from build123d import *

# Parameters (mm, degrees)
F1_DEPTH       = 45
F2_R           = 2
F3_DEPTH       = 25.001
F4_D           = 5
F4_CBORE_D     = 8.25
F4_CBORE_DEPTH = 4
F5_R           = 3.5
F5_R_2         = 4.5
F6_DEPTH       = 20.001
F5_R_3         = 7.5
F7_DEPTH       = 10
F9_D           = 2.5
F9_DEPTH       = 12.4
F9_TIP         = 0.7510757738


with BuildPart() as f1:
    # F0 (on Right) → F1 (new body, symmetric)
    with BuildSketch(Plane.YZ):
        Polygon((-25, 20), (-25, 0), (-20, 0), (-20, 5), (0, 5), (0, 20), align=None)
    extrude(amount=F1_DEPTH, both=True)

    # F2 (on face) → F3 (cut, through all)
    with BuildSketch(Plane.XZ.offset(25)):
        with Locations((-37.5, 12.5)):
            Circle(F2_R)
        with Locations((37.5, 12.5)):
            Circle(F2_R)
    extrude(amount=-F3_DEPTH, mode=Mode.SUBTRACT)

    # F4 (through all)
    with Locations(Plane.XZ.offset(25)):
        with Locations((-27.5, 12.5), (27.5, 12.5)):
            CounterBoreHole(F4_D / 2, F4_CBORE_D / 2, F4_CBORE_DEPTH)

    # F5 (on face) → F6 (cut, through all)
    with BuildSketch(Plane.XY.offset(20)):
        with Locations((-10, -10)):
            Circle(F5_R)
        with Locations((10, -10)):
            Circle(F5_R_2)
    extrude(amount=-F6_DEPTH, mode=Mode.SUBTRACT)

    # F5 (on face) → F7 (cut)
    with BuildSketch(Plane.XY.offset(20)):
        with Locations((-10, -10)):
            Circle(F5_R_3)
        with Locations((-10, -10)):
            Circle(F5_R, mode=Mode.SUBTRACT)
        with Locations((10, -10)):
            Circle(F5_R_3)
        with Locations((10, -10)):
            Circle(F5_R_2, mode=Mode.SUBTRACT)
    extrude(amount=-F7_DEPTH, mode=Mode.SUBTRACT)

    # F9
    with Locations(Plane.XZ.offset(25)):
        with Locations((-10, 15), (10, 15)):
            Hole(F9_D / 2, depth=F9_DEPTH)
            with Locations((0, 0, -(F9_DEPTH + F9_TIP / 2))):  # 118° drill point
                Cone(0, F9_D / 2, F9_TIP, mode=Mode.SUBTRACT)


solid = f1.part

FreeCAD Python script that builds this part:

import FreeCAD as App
import Part
import Sketcher
from FreeCAD import Vector


def add_polygon(sketch, points):
    """Adds a closed chain of lines whose ends are joined by coincident constraints."""
    first, n = sketch.GeometryCount, len(points)
    for a, b in zip(points, points[1:] + points[:1]):
        sketch.addGeometry(Part.LineSegment(App.Vector(*a, 0), App.Vector(*b, 0)), False)
    for i in range(n):
        sketch.addConstraint(Sketcher.Constraint("Coincident", first + i, 2, first + (i + 1) % n, 1))

doc = App.newDocument("Part")
body = doc.addObject("PartDesign::Body", "Body")

sketch1 = doc.addObject("Sketcher::SketchObject", "Sketch")
body.addObject(sketch1)
sketch1.AttachmentSupport = (doc.YZ_Plane, [""])
sketch1.MapMode = "FlatFace"
add_polygon(sketch1, [(-25, 20), (-25, 0), (-20, 0), (-20, 5), (0, 5), (0, 20)])
sketch1.addConstraint(Sketcher.Constraint("Vertical", 0))
sketch1.addConstraint(Sketcher.Constraint("Horizontal", 1))
sketch1.addConstraint(Sketcher.Constraint("Vertical", 2))
sketch1.addConstraint(Sketcher.Constraint("Horizontal", 3))
sketch1.addConstraint(Sketcher.Constraint("Vertical", 4))
sketch1.addConstraint(Sketcher.Constraint("Horizontal", 5))
sketch1.addConstraint(Sketcher.Constraint("PointOnObject", 0, 2, -1))
sketch1.addConstraint(Sketcher.Constraint("PointOnObject", 3, 2, -2))
sketch1.addConstraint(Sketcher.Constraint("Equal", 3, 0))
sketch1.addConstraint(Sketcher.Constraint("Equal", 1, 2))
sketch1.addConstraint(Sketcher.Constraint("DistanceX", 1, 1, 1, 2, 5.0))
sketch1.addConstraint(Sketcher.Constraint("DistanceX", 3, 1, 3, 2, 20.0))
pad1 = doc.addObject("PartDesign::Pad", "Pad")
body.addObject(pad1)
pad1.Profile = sketch1
pad1.Length = 90
pad1.Midplane = True

sketch2 = doc.addObject("Sketcher::SketchObject", "Sketch001")
body.addObject(sketch2)
sketch2.AttachmentSupport = (doc.XZ_Plane, [""])
sketch2.MapMode = "FlatFace"
sketch2.AttachmentOffset = App.Placement(Vector(0, 0, 25), App.Rotation())
sketch2.addGeometry(Part.Circle(Vector(-37.5, 12.5, 0), Vector(0, 0, 1), 2), False)
sketch2.addGeometry(Part.Circle(Vector(37.5, 12.5, 0), Vector(0, 0, 1), 2), False)
sketch2.addConstraint(Sketcher.Constraint("Equal", 0, 1))
sketch2.addConstraint(Sketcher.Constraint("Symmetric", 0, 3, 1, 3, -2))
sketch2.addConstraint(Sketcher.Constraint("Diameter", 0, 4.0))
sketch2.addConstraint(Sketcher.Constraint("DistanceX", 0, 3, 1, 3, 75.0))
sketch2.addConstraint(Sketcher.Constraint("DistanceY", -1, 1, 0, 3, 12.5))
pocket1 = doc.addObject("PartDesign::Pocket", "Pocket")
body.addObject(pocket1)
pocket1.Profile = sketch2
pocket1.Type = "ThroughAll"

sketch3 = doc.addObject("Sketcher::SketchObject", "Sketch002")
body.addObject(sketch3)
sketch3.AttachmentSupport = (doc.XZ_Plane, [""])
sketch3.MapMode = "FlatFace"
sketch3.AttachmentOffset = App.Placement(Vector(0, 0, 25), App.Rotation())
sketch3.addGeometry(Part.Circle(Vector(-27.5, 12.5, 0), Vector(0, 0, 1), 2.5), False)
sketch3.addGeometry(Part.Circle(Vector(27.5, 12.5, 0), Vector(0, 0, 1), 2.5), False)
sketch3.addConstraint(Sketcher.Constraint("Equal", 0, 1))
sketch3.addConstraint(Sketcher.Constraint("Symmetric", 0, 3, 1, 3, -2))
sketch3.addConstraint(Sketcher.Constraint("Diameter", 0, 5.0))
sketch3.addConstraint(Sketcher.Constraint("DistanceX", 0, 3, 1, 3, 55.0))
sketch3.addConstraint(Sketcher.Constraint("DistanceY", -1, 1, 0, 3, 12.5))
doc.recompute()
hole = doc.addObject("PartDesign::Hole", "Hole")
body.addObject(hole)
hole.Profile = sketch3
hole.ThreadType = "None"
hole.Diameter = 5
hole.DepthType = "ThroughAll"
hole.HoleCutType = "Counterbore"
hole.HoleCutDiameter = 8.25
hole.HoleCutDepth = 4

sketch4 = doc.addObject("Sketcher::SketchObject", "Sketch003")
body.addObject(sketch4)
sketch4.AttachmentSupport = (doc.XY_Plane, [""])
sketch4.MapMode = "FlatFace"
sketch4.AttachmentOffset = App.Placement(Vector(0, 0, 20), App.Rotation())
sketch4.addGeometry(Part.Circle(Vector(-10, -10, 0), Vector(0, 0, 1), 3.5), False)
sketch4.addGeometry(Part.Circle(Vector(10, -10, 0), Vector(0, 0, 1), 4.5), False)
sketch4.addConstraint(Sketcher.Constraint("Symmetric", 0, 3, 1, 3, -2))
sketch4.addConstraint(Sketcher.Constraint("Diameter", 0, 7.0))
sketch4.addConstraint(Sketcher.Constraint("Diameter", 1, 9.0))
sketch4.addConstraint(Sketcher.Constraint("DistanceX", 0, 3, -1, 1, 10.0))
sketch4.addConstraint(Sketcher.Constraint("DistanceY", 0, 3, -1, 1, 10.0))
pocket2 = doc.addObject("PartDesign::Pocket", "Pocket001")
body.addObject(pocket2)
pocket2.Profile = sketch4
pocket2.Type = "ThroughAll"

sketch5 = doc.addObject("Sketcher::SketchObject", "Sketch004")
body.addObject(sketch5)
sketch5.AttachmentSupport = (doc.XY_Plane, [""])
sketch5.MapMode = "FlatFace"
sketch5.AttachmentOffset = App.Placement(Vector(0, 0, 20), App.Rotation())
sketch5.addGeometry(Part.Circle(Vector(-10, -10, 0), Vector(0, 0, 1), 7.5), False)
sketch5.addGeometry(Part.Circle(Vector(-10, -10, 0), Vector(0, 0, 1), 3.5), False)
sketch5.addGeometry(Part.Circle(Vector(10, -10, 0), Vector(0, 0, 1), 7.5), False)
sketch5.addGeometry(Part.Circle(Vector(10, -10, 0), Vector(0, 0, 1), 4.5), False)
sketch5.addConstraint(Sketcher.Constraint("Coincident", 1, 3, 0, 3))
sketch5.addConstraint(Sketcher.Constraint("Coincident", 3, 3, 2, 3))
sketch5.addConstraint(Sketcher.Constraint("Equal", 0, 2))
sketch5.addConstraint(Sketcher.Constraint("Symmetric", 0, 3, 2, 3, -2))
sketch5.addConstraint(Sketcher.Constraint("Diameter", 0, 15.0))
sketch5.addConstraint(Sketcher.Constraint("Diameter", 1, 7.0))
sketch5.addConstraint(Sketcher.Constraint("Diameter", 3, 9.0))
sketch5.addConstraint(Sketcher.Constraint("DistanceX", 0, 3, -1, 1, 10.0))
sketch5.addConstraint(Sketcher.Constraint("DistanceY", 0, 3, -1, 1, 10.0))
pocket3 = doc.addObject("PartDesign::Pocket", "Pocket002")
body.addObject(pocket3)
pocket3.Profile = sketch5
pocket3.Length = 10

sketch6 = doc.addObject("Sketcher::SketchObject", "Sketch005")
body.addObject(sketch6)
sketch6.AttachmentSupport = (doc.XZ_Plane, [""])
sketch6.MapMode = "FlatFace"
sketch6.AttachmentOffset = App.Placement(Vector(0, 0, 25), App.Rotation())
sketch6.addGeometry(Part.Circle(Vector(-10, 15, 0), Vector(0, 0, 1), 1.2), False)
sketch6.addGeometry(Part.Circle(Vector(10, 15, 0), Vector(0, 0, 1), 1.2), False)
sketch6.addConstraint(Sketcher.Constraint("Equal", 0, 1))
sketch6.addConstraint(Sketcher.Constraint("Symmetric", 0, 3, 1, 3, -2))
sketch6.addConstraint(Sketcher.Constraint("Diameter", 0, 2.5))
sketch6.addConstraint(Sketcher.Constraint("DistanceX", 0, 3, -1, 1, 10.0))
sketch6.addConstraint(Sketcher.Constraint("DistanceY", -1, 1, 0, 3, 15.0))
doc.recompute()
hole2 = doc.addObject("PartDesign::Hole", "Hole001")
body.addObject(hole2)
hole2.Profile = sketch6
hole2.ThreadType = "None"
hole2.Diameter = 2.5
hole2.DepthType = "Dimension"
hole2.Depth = 12.4
hole2.DrillPoint = "Angled"
hole2.DrillPointAngle = 118

doc.recompute()
